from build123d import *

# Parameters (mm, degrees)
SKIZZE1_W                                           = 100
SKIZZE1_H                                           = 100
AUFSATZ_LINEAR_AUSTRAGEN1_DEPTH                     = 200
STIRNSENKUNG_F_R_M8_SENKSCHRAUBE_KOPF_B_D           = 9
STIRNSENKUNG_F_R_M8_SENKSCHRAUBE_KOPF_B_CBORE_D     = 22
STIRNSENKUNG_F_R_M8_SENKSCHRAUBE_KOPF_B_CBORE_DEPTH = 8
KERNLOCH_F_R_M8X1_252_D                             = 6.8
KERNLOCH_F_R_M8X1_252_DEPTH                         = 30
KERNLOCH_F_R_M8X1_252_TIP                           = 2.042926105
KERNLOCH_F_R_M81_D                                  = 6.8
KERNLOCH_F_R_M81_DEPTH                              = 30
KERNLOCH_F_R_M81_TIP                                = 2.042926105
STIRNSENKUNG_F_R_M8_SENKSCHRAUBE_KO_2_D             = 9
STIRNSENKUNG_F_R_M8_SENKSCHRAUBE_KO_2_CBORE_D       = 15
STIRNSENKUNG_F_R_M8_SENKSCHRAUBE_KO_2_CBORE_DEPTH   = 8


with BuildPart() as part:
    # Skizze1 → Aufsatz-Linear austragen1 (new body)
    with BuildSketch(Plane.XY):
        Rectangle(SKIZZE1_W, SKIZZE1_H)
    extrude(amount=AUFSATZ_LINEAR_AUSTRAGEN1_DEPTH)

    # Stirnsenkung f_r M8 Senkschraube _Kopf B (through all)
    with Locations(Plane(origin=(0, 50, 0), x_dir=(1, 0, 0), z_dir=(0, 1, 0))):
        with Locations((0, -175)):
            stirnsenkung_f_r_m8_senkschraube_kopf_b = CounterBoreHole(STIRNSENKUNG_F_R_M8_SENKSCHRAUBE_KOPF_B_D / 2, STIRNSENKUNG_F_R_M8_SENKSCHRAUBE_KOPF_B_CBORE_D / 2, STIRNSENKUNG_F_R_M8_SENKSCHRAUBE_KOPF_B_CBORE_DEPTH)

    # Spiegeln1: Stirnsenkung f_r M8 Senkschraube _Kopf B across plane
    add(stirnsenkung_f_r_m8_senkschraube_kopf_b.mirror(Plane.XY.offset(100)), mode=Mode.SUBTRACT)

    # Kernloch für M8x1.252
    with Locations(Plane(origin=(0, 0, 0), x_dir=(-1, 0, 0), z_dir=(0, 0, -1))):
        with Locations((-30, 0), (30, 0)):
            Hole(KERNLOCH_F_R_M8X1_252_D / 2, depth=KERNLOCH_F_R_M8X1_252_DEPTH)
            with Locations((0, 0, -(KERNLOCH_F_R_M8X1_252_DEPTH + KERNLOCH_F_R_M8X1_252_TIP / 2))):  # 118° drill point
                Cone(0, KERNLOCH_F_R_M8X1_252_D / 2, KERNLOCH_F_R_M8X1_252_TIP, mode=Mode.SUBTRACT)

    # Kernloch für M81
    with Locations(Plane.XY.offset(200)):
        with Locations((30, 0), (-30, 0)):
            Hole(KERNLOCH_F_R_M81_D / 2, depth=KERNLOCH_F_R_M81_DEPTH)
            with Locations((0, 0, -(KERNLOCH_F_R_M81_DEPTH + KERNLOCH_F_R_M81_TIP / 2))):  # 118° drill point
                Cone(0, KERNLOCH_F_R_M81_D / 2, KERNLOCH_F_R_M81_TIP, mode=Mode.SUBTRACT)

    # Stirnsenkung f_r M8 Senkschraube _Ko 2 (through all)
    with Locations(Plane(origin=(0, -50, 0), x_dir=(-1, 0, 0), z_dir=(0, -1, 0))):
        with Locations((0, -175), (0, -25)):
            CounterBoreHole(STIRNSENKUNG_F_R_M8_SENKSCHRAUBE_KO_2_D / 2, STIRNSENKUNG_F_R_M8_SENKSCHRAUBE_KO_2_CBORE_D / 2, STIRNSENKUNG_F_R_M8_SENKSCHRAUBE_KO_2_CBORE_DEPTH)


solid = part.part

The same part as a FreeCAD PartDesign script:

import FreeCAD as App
import Part
import Sketcher

V = App.Vector
Q = App.Units.Quantity


def add_polygon(sketch, points):
    """Adds a closed chain of lines whose ends are joined by coincident constraints."""
    first, n = sketch.GeometryCount, len(points)
    for a, b in zip(points, points[1:] + points[:1]):
        sketch.addGeometry(Part.LineSegment(App.Vector(*a, 0), App.Vector(*b, 0)), False)
    for i in range(n):
        sketch.addConstraint(Sketcher.Constraint("Coincident", first + i, 2, first + (i + 1) % n, 1))

doc = App.newDocument("Part")
body = doc.addObject("PartDesign::Body", "Body")

# Sketch on XY plane
sketch1 = body.newObject("Sketcher::SketchObject", "Sketch")
sketch1.AttachmentSupport = (doc.getObject("XY_Plane"), [""])
sketch1.MapMode = "FlatFace"
add_polygon(sketch1, [(-50, 50), (-50, -50), (50, -50), (50, 50)])  # lines 0-3
sketch1.addConstraint([
    Sketcher.Constraint("Vertical", 0),
    Sketcher.Constraint("Horizontal", 1),
    Sketcher.Constraint("Vertical", 2),
    Sketcher.Constraint("Horizontal", 3),
    Sketcher.Constraint("Symmetric", 0, 2, 2, 2, -1, 1),
    Sketcher.Constraint("Equal", 3, 0),
    Sketcher.Constraint("DistanceX", 1, 1, 1, 2, Q("100 mm")),
])
pad1 = body.newObject("PartDesign::Pad", "Pad")
pad1.Profile = sketch1
pad1.Length = 200

# Sketch on XZ plane
sketch2 = body.newObject("Sketcher::SketchObject", "Sketch001")
sketch2.AttachmentSupport = (doc.getObject("XZ_Plane"), [""])
sketch2.MapMode = "FlatFace"
sketch2.AttachmentOffset = App.Placement(V(0, 0, -50), App.Rotation())
sketch2.addGeometry(Part.Circle(V(0, 175, 0), V(0, 0, 1), 4.5), False)
sketch2.addConstraint([
    Sketcher.Constraint("PointOnObject", 0, 3, -2),
    Sketcher.Constraint("Diameter", 0, Q("9 mm")),
    Sketcher.Constraint("DistanceY", -1, 1, 0, 3, Q("175 mm")),
])
doc.recompute()
hole = body.newObject("PartDesign::Hole", "Hole")
hole.Profile = sketch2
hole.ThreadType = "None"
hole.Diameter = 9
hole.DepthType = "ThroughAll"
hole.HoleCutType = "Counterbore"
hole.HoleCutDiameter = 22
hole.HoleCutDepth = 8
hole.Reversed = True
doc.recompute()

datumplane = body.newObject("PartDesign::Plane", "DatumPlane")
datumplane.AttachmentSupport = (doc.getObject("XY_Plane"), [""])
datumplane.MapMode = "FlatFace"
datumplane.AttachmentOffset = App.Placement(V(0, 0, 100), App.Rotation())
mirrored = body.newObject("PartDesign::Mirrored", "Mirrored")
mirrored.Originals = [hole]
mirrored.MirrorPlane = (datumplane, [""])
body.Tip = mirrored

# Sketch on XY plane
sketch3 = body.newObject("Sketcher::SketchObject", "Sketch002")
sketch3.AttachmentSupport = (doc.getObject("XY_Plane"), [""])
sketch3.MapMode = "FlatFace"
sketch3.addGeometry([
    Part.Circle(V(30, 0, 0), V(0, 0, 1), 3.4),
    Part.Circle(V(-30, 0, 0), V(0, 0, 1), 3.4),
], False)
sketch3.addConstraint([
    Sketcher.Constraint("Equal", 0, 1),
    Sketcher.Constraint("Symmetric", 0, 3, 1, 3, -1, 1),
    Sketcher.Constraint("PointOnObject", 0, 3, -1),
    Sketcher.Constraint("Diameter", 0, Q("6.8 mm")),
    Sketcher.Constraint("DistanceX", -1, 1, 0, 3, Q("30 mm")),
])
doc.recompute()
hole2 = body.newObject("PartDesign::Hole", "Hole001")
hole2.Profile = sketch3
hole2.ThreadType = "None"
hole2.Diameter = 6.8
hole2.DepthType = "Dimension"
hole2.Depth = 30
hole2.DrillPoint = "Angled"
hole2.DrillPointAngle = 118
hole2.Reversed = True

# Sketch on XY plane
sketch4 = body.newObject("Sketcher::SketchObject", "Sketch003")
sketch4.AttachmentSupport = (doc.getObject("XY_Plane"), [""])
sketch4.MapMode = "FlatFace"
sketch4.AttachmentOffset = App.Placement(V(0, 0, 200), App.Rotation())
sketch4.addGeometry([
    Part.Circle(V(30, 0, 0), V(0, 0, 1), 3.4),
    Part.Circle(V(-30, 0, 0), V(0, 0, 1), 3.4),
], False)
sketch4.addConstraint([
    Sketcher.Constraint("Equal", 0, 1),
    Sketcher.Constraint("Symmetric", 0, 3, 1, 3, -1, 1),
    Sketcher.Constraint("PointOnObject", 0, 3, -1),
    Sketcher.Constraint("Diameter", 0, Q("6.8 mm")),
    Sketcher.Constraint("DistanceX", -1, 1, 0, 3, Q("30 mm")),
])
doc.recompute()
hole3 = body.newObject("PartDesign::Hole", "Hole002")
hole3.Profile = sketch4
hole3.ThreadType = "None"
hole3.Diameter = 6.8
hole3.DepthType = "Dimension"
hole3.Depth = 30
hole3.DrillPoint = "Angled"
hole3.DrillPointAngle = 118

# Sketch on XZ plane
sketch5 = body.newObject("Sketcher::SketchObject", "Sketch004")
sketch5.AttachmentSupport = (doc.getObject("XZ_Plane"), [""])
sketch5.MapMode = "FlatFace"
sketch5.AttachmentOffset = App.Placement(V(0, 0, 50), App.Rotation())
sketch5.addGeometry([
    Part.Circle(V(0, 175, 0), V(0, 0, 1), 4.5),
    Part.Circle(V(0, 25, 0), V(0, 0, 1), 4.5),
], False)
sketch5.addConstraint([
    Sketcher.Constraint("Equal", 0, 1),
    Sketcher.Constraint("PointOnObject", 0, 3, -2),
    Sketcher.Constraint("PointOnObject", 1, 3, -2),
    Sketcher.Constraint("Diameter", 0, Q("9 mm")),
    Sketcher.Constraint("DistanceY", -1, 1, 0, 3, Q("175 mm")),
    Sketcher.Constraint("DistanceY", -1, 1, 1, 3, Q("25 mm")),
])
doc.recompute()
hole4 = body.newObject("PartDesign::Hole", "Hole003")
hole4.Profile = sketch5
hole4.ThreadType = "None"
hole4.Diameter = 9
hole4.DepthType = "ThroughAll"
hole4.HoleCutType = "Counterbore"
hole4.HoleCutDiameter = 15
hole4.HoleCutDepth = 8

doc.recompute()
